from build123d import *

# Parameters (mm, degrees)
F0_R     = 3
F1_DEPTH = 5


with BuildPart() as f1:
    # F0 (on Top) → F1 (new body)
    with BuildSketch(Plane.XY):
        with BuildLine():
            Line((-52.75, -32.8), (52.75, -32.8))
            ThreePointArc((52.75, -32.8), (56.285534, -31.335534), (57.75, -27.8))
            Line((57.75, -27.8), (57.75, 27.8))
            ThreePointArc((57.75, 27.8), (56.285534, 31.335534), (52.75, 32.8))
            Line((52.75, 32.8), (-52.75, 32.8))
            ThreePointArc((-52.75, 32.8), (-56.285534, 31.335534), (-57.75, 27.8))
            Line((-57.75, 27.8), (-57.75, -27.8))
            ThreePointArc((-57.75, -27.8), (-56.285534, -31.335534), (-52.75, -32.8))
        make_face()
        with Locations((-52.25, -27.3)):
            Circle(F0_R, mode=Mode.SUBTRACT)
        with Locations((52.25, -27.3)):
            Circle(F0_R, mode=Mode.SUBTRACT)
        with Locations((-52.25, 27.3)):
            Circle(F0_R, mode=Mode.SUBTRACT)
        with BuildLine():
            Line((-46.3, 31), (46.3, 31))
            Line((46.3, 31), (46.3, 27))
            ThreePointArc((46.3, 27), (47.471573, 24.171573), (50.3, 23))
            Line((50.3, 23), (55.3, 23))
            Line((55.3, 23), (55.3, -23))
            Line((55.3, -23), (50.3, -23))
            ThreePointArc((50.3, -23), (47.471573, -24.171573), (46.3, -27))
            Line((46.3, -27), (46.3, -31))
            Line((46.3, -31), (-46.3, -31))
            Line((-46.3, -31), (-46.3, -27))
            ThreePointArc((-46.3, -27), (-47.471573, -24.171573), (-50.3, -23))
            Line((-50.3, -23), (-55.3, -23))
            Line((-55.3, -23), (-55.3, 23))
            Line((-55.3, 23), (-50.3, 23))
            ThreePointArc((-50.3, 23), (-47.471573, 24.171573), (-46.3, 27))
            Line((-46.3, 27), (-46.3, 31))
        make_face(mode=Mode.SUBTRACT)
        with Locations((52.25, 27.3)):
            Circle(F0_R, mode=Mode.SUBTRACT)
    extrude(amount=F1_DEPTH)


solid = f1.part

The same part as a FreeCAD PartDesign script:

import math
import FreeCAD as App
import Part
import Sketcher

V = App.Vector

doc = App.newDocument("Part")
body = doc.addObject("PartDesign::Body", "Body")

# Sketch on XY plane
sketch1 = doc.addObject("Sketcher::SketchObject", "Sketch")
body.addObject(sketch1)
sketch1.AttachmentSupport = (doc.XY_Plane, [""])
sketch1.MapMode = "FlatFace"
sketch1.addGeometry([
    Part.LineSegment(V(-52.75, -32.8, 0), V(52.75, -32.8, 0)),  # 0
    Part.ArcOfCircle(Part.Circle(V(52.75, -27.8, 0), V(0, 0, 1), 5), math.radians(-90.000004), math.radians(0.000004)),  # 1
    Part.LineSegment(V(57.75, -27.8, 0), V(57.75, 27.8, 0)),  # 2
    Part.ArcOfCircle(Part.Circle(V(52.75, 27.8, 0), V(0, 0, 1), 5), math.radians(-0.000004), math.radians(90.000004)),  # 3
    Part.LineSegment(V(52.75, 32.8, 0), V(-52.75, 32.8, 0)),  # 4
    Part.ArcOfCircle(Part.Circle(V(-52.75, 27.8, 0), V(0, 0, 1), 5), math.radians(89.999996), math.radians(180.000004)),  # 5
    Part.LineSegment(V(-57.75, 27.8, 0), V(-57.75, -27.8, 0)),  # 6
    Part.ArcOfCircle(Part.Circle(V(-52.75, -27.8, 0), V(0, 0, 1), 5), math.radians(179.999996), math.radians(270.000004)),  # 7
    Part.Circle(V(-52.25, -27.3, 0), V(0, 0, 1), 3),  # 8
    Part.Circle(V(52.25, -27.3, 0), V(0, 0, 1), 3),  # 9
    Part.Circle(V(-52.25, 27.3, 0), V(0, 0, 1), 3),  # 10
    Part.LineSegment(V(-46.3, 27, 0), V(-46.3, 31, 0)),  # 11
    Part.LineSegment(V(-46.3, 31, 0), V(46.3, 31, 0)),  # 12
    Part.LineSegment(V(46.3, 31, 0), V(46.3, 27, 0)),  # 13
    Part.ArcOfCircle(Part.Circle(V(50.3, 27, 0), V(0, 0, 1), 4), math.radians(-179.999994), math.radians(-90.000006)),  # 14
    Part.LineSegment(V(50.3, 23, 0), V(55.3, 23, 0)),  # 15
    Part.LineSegment(V(55.3, 23, 0), V(55.3, -23, 0)),  # 16
    Part.LineSegment(V(55.3, -23, 0), V(50.3, -23, 0)),  # 17
    Part.ArcOfCircle(Part.Circle(V(50.3, -27, 0), V(0, 0, 1), 4), math.radians(90.000006), math.radians(179.999994)),  # 18
    Part.LineSegment(V(46.3, -27, 0), V(46.3, -31, 0)),  # 19
    Part.LineSegment(V(46.3, -31, 0), V(-46.3, -31, 0)),  # 20
    Part.LineSegment(V(-46.3, -31, 0), V(-46.3, -27, 0)),  # 21
    Part.ArcOfCircle(Part.Circle(V(-50.3, -27, 0), V(0, 0, 1), 4), math.radians(0.000006), math.radians(89.999994)),  # 22
    Part.LineSegment(V(-50.3, -23, 0), V(-55.3, -23, 0)),  # 23
    Part.LineSegment(V(-55.3, -23, 0), V(-55.3, 23, 0)),  # 24
    Part.LineSegment(V(-55.3, 23, 0), V(-50.3, 23, 0)),  # 25
    Part.ArcOfCircle(Part.Circle(V(-50.3, 27, 0), V(0, 0, 1), 4), math.radians(-89.999994), math.radians(-0.000006)),  # 26
    Part.Circle(V(52.25, 27.3, 0), V(0, 0, 1), 3),  # 27
], False)
sketch1.addConstraint([
    Sketcher.Constraint("Tangent", 0, 2, 1, 1),
    Sketcher.Constraint("Tangent", 1, 2, 2, 1),
    Sketcher.Constraint("Tangent", 2, 2, 3, 1),
    Sketcher.Constraint("Tangent", 3, 2, 4, 1),
    Sketcher.Constraint("Tangent", 4, 2, 5, 1),
    Sketcher.Constraint("Tangent", 5, 2, 6, 1),
    Sketcher.Constraint("Tangent", 6, 2, 7, 1),
    Sketcher.Constraint("Tangent", 7, 2, 0, 1),
    Sketcher.Constraint("Coincident", 11, 2, 12, 1),
    Sketcher.Constraint("Coincident", 12, 2, 13, 1),
    Sketcher.Constraint("Tangent", 13, 2, 14, 1),
    Sketcher.Constraint("Tangent", 14, 2, 15, 1),
    Sketcher.Constraint("Coincident", 15, 2, 16, 1),
    Sketcher.Constraint("Coincident", 16, 2, 17, 1),
    Sketcher.Constraint("Tangent", 17, 2, 18, 1),
    Sketcher.Constraint("Tangent", 18, 2, 19, 1),
    Sketcher.Constraint("Coincident", 19, 2, 20, 1),
    Sketcher.Constraint("Coincident", 20, 2, 21, 1),
    Sketcher.Constraint("Tangent", 21, 2, 22, 1),
    Sketcher.Constraint("Tangent", 22, 2, 23, 1),
    Sketcher.Constraint("Coincident", 23, 2, 24, 1),
    Sketcher.Constraint("Coincident", 24, 2, 25, 1),
    Sketcher.Constraint("Tangent", 25, 2, 26, 1),
    Sketcher.Constraint("Tangent", 26, 2, 11, 1),
    Sketcher.Constraint("Horizontal", 0),
    Sketcher.Constraint("Vertical", 2),
    Sketcher.Constraint("Horizontal", 4),
    Sketcher.Constraint("Vertical", 6),
    Sketcher.Constraint("Vertical", 11),
    Sketcher.Constraint("Horizontal", 12),
    Sketcher.Constraint("Vertical", 13),
    Sketcher.Constraint("Horizontal", 15),
    Sketcher.Constraint("Vertical", 16),
    Sketcher.Constraint("Horizontal", 17),
    Sketcher.Constraint("Vertical", 19),
    Sketcher.Constraint("Horizontal", 20),
    Sketcher.Constraint("Vertical", 21),
    Sketcher.Constraint("Horizontal", 23),
    Sketcher.Constraint("Vertical", 24),
    Sketcher.Constraint("Horizontal", 25),
    Sketcher.Constraint("Equal", 1, 3),
    Sketcher.Constraint("Equal", 3, 5),
    Sketcher.Constraint("Equal", 5, 7),
    Sketcher.Constraint("Equal", 8, 9),
    Sketcher.Constraint("Equal", 9, 10),
    Sketcher.Constraint("Equal", 14, 18),
    Sketcher.Constraint("Equal", 18, 22),
    Sketcher.Constraint("Equal", 22, 26),
    Sketcher.Constraint("Equal", 10, 27),
    Sketcher.Constraint("Symmetric", 1, 3, 5, 3, -1, 1),
    Sketcher.Constraint("Symmetric", 9, 3, 10, 3, -1, 1),
    Sketcher.Constraint("Symmetric", 14, 3, 22, 3, -1, 1),
    Sketcher.Constraint("Symmetric", 18, 3, 26, 3, -1, 1),
    Sketcher.Constraint("Symmetric", 8, 3, 27, 3, -1, 1),
    Sketcher.Constraint("Symmetric", 8, 3, 9, 3, -2),
    Sketcher.Constraint("Symmetric", 18, 3, 22, 3, -2),
    Sketcher.Constraint("Equal", 17, 23),
    Sketcher.Constraint("Equal", 13, 19),
    Sketcher.Constraint("Diameter", 8, 6.0),
    Sketcher.Constraint("Radius", 1, 5.0),
    Sketcher.Constraint("Radius", 14, 4.0),
    Sketcher.Constraint("DistanceX", 15, 1, 15, 2, 5.0),
    Sketcher.Constraint("DistanceY", 11, 1, 11, 2, 4.0),
    Sketcher.Constraint("DistanceY", 16, 2, 16, 1, 46.0),
    Sketcher.Constraint("DistanceX", 0, 1, 0, 2, 105.5),
    Sketcher.Constraint("DistanceX", 12, 1, 12, 2, 92.6),
    Sketcher.Constraint("DistanceY", 2, 1, 2, 2, 55.6),
    Sketcher.Constraint("DistanceX", 8, 3, 1, 3, 105.0),
    Sketcher.Constraint("DistanceY", 8, 3, -1, 1, 27.3),
])
pad1 = doc.addObject("PartDesign::Pad", "Pad")
body.addObject(pad1)
pad1.Profile = sketch1
pad1.Length = 5

doc.recompute()
